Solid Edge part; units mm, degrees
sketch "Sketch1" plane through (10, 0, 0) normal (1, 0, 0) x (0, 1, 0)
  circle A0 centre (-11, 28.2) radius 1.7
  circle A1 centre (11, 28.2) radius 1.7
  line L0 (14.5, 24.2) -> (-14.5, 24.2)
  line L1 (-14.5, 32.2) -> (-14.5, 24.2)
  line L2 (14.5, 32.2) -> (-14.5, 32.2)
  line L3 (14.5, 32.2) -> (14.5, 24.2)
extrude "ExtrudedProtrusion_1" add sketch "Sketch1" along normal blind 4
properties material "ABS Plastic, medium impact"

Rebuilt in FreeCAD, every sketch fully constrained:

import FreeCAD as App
import Part
import Sketcher
Q = App.Units.Quantity

doc = App.newDocument("Part")
body = doc.addObject("PartDesign::Body", "Body")

sketch1 = body.newObject("Sketcher::SketchObject", "Sketch")
sketch1.AttachmentSupport = (doc.getObject("YZ_Plane"), [""])
sketch1.MapMode = "FlatFace"
sketch1.AttachmentOffset = App.Placement(App.Vector(0, 0, 10), App.Rotation())
sketch1.addGeometry(Part.LineSegment(App.Vector(-14.5, 24.2, 0), App.Vector(14.5, 24.2, 0)), False)
sketch1.addGeometry(Part.LineSegment(App.Vector(14.5, 24.2, 0), App.Vector(14.5, 32.2, 0)), False)
sketch1.addGeometry(Part.LineSegment(App.Vector(14.5, 32.2, 0), App.Vector(-14.5, 32.2, 0)), False)
sketch1.addGeometry(Part.LineSegment(App.Vector(-14.5, 32.2, 0), App.Vector(-14.5, 24.2, 0)), False)
sketch1.addGeometry(Part.Circle(App.Vector(-11, 28.2, 0), App.Vector(0, 0, 1), 1.7), False)
sketch1.addGeometry(Part.Circle(App.Vector(11, 28.2, 0), App.Vector(0, 0, 1), 1.7), False)
sketch1.addConstraint(Sketcher.Constraint("Coincident", 0, 2, 1, 1))
sketch1.addConstraint(Sketcher.Constraint("Coincident", 1, 2, 2, 1))
sketch1.addConstraint(Sketcher.Constraint("Coincident", 2, 2, 3, 1))
sketch1.addConstraint(Sketcher.Constraint("Coincident", 3, 2, 0, 1))
sketch1.addConstraint(Sketcher.Constraint("Horizontal", 0))
sketch1.addConstraint(Sketcher.Constraint("Vertical", 1))
sketch1.addConstraint(Sketcher.Constraint("Horizontal", 2))
sketch1.addConstraint(Sketcher.Constraint("Vertical", 3))
sketch1.addConstraint(Sketcher.Constraint("Equal", 4, 5))
sketch1.addConstraint(Sketcher.Constraint("Symmetric", 4, 3, 5, 3, -2))
sketch1.addConstraint(Sketcher.Constraint("Diameter", 4, Q("3.4 mm")))
sketch1.addConstraint(Sketcher.Constraint("DistanceX", 0, 1, 0, 2, Q("29 mm")))
sketch1.addConstraint(Sketcher.Constraint("DistanceY", 1, 1, 1, 2, Q("8 mm")))
sketch1.addConstraint(Sketcher.Constraint("DistanceX", 4, 3, -1, 1, Q("11 mm")))
sketch1.addConstraint(Sketcher.Constraint("DistanceY", 0, 2, 5, 3, Q("4 mm")))
sketch1.addConstraint(Sketcher.Constraint("DistanceY", -1, 1, 4, 3, Q("28.2 mm")))
sketch1.addConstraint(Sketcher.Constraint("DistanceX", -1, 1, 0, 2, Q("14.5 mm")))
pad1 = body.newObject("PartDesign::Pad", "Pad")
pad1.Profile = sketch1
pad1.Length = 4

doc.recompute()
